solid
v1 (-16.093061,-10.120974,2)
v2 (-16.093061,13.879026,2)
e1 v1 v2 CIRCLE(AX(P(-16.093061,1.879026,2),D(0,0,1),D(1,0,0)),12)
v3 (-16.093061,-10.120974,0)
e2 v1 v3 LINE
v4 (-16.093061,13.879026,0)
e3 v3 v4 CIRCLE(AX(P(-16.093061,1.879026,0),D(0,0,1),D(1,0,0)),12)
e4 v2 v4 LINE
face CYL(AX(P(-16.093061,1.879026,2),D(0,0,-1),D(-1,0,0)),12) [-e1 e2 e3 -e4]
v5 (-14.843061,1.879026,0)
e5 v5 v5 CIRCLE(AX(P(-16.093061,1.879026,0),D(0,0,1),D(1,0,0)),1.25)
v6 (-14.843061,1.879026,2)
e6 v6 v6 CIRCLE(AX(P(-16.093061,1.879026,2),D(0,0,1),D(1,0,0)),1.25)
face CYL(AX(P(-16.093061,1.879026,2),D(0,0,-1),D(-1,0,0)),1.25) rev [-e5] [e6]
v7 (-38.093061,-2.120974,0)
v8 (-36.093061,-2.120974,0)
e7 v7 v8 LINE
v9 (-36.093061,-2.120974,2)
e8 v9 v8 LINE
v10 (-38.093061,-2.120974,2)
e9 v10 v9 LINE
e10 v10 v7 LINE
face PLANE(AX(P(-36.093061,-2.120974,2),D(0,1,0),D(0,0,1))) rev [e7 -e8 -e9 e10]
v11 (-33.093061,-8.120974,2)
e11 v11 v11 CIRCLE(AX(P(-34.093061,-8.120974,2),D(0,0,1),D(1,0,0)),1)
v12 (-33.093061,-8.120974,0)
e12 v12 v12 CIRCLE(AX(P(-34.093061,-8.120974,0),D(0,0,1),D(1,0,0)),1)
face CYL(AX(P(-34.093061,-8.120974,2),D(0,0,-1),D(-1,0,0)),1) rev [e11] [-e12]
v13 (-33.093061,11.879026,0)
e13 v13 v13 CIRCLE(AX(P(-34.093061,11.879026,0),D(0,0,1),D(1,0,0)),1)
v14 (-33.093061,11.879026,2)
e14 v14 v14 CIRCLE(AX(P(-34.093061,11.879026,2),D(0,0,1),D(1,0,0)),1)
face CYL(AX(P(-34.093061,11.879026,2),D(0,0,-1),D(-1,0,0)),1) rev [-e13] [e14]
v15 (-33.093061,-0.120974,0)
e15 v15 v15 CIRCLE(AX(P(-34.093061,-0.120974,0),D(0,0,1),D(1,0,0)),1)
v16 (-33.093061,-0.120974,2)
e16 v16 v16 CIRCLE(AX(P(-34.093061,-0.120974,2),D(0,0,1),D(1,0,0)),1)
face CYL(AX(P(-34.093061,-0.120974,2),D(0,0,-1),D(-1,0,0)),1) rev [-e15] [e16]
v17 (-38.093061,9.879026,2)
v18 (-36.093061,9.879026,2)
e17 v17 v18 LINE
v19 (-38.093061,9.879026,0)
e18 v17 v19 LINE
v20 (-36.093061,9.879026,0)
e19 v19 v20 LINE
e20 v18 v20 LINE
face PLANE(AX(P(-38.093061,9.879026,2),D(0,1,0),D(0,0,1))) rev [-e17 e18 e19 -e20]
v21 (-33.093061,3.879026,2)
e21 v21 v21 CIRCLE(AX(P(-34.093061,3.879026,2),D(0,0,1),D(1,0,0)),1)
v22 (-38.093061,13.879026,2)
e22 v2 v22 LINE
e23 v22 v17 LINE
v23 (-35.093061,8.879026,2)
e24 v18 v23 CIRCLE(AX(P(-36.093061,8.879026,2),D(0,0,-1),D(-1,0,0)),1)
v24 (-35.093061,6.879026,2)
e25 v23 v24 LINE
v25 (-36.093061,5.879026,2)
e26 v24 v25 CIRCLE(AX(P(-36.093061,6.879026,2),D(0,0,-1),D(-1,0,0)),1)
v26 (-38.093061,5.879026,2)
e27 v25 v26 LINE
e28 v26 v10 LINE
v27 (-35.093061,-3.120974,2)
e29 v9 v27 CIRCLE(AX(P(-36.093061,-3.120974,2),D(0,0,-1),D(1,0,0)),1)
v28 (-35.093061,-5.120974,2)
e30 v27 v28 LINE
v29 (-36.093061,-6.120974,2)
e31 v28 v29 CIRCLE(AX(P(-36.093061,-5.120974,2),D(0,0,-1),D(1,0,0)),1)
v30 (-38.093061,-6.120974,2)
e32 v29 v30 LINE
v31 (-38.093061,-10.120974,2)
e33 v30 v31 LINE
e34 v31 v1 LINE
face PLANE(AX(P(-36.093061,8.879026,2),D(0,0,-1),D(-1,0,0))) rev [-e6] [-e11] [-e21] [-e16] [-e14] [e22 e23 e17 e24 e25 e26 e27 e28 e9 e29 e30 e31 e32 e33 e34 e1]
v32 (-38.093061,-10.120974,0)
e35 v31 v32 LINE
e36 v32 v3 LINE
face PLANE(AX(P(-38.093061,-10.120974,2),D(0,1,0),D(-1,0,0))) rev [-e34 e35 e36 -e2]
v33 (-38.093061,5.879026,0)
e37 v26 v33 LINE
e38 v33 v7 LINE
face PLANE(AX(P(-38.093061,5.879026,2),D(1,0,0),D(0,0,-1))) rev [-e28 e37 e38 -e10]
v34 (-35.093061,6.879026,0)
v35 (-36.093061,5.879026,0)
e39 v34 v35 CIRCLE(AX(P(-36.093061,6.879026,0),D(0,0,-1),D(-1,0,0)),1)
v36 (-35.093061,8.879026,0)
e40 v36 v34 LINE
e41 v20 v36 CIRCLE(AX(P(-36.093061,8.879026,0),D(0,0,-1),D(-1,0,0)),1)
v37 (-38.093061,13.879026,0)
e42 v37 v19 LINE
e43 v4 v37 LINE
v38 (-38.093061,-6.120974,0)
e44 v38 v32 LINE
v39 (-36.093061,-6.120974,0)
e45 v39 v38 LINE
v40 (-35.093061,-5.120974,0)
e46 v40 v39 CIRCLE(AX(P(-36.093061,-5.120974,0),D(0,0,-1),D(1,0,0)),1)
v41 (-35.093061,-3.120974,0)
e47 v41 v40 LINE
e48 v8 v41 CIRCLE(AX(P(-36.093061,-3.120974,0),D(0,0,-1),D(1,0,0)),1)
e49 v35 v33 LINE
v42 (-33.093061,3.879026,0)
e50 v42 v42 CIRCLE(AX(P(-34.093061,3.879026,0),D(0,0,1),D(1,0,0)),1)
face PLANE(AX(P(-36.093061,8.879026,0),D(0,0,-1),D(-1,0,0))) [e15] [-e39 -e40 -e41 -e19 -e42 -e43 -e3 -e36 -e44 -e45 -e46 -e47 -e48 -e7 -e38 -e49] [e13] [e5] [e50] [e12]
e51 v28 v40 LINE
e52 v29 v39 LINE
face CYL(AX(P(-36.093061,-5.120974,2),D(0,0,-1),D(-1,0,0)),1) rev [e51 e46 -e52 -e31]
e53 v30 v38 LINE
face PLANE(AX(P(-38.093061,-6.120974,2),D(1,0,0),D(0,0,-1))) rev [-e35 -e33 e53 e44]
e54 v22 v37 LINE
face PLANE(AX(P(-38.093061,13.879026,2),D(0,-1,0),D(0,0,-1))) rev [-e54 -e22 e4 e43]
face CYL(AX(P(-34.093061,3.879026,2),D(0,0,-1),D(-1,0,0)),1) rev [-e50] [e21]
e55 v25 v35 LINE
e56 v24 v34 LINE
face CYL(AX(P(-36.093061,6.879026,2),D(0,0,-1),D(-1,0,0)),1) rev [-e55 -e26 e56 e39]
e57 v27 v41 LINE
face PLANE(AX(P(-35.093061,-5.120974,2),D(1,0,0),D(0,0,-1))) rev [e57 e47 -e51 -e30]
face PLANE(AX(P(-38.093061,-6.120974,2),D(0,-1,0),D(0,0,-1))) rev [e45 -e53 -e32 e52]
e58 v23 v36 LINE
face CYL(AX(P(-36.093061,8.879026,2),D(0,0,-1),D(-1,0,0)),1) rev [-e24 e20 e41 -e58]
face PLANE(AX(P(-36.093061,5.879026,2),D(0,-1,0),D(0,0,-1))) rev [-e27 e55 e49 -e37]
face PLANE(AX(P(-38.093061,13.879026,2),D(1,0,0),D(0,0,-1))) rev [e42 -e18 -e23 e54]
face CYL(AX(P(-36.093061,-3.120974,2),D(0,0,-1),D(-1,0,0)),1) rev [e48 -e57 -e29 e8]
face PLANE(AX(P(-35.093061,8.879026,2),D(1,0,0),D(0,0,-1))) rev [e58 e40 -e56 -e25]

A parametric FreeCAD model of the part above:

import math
import FreeCAD as App
import Part
import Sketcher

doc = App.newDocument("Part")
params = doc.addObject("Spreadsheet::Sheet", "Params")
for row, (alias, value) in enumerate([
    ("sketch1_diameter", "2 mm"),
    ("sketch1_radius", "12 mm"),
    ("sketch1_diameter2", "2.5 mm"),
    ("sketch1_width", "22 mm"),
    ("sketch1_width2", "2 mm"),
    ("pad1_length", "2 mm"),
], start=1):
    params.set(f"A{row}", alias)
    params.set(f"B{row}", "=" + value)
    params.setAlias(f"B{row}", alias)

body = doc.addObject("PartDesign::Body", "Body")

sketch1 = body.newObject("Sketcher::SketchObject", "Sketch")
sketch1.AttachmentSupport = (doc.getObject("XY_Plane"), [""])
sketch1.MapMode = "FlatFace"
sketch1.addGeometry(Part.LineSegment(App.Vector(-16.1, 13.9, 0), App.Vector(-38.1, 13.9, 0)), False)
sketch1.addGeometry(Part.LineSegment(App.Vector(-38.1, 13.9, 0), App.Vector(-38.1, 9.9, 0)), False)
sketch1.addGeometry(Part.LineSegment(App.Vector(-38.1, 9.9, 0), App.Vector(-36.1, 9.9, 0)), False)
sketch1.addGeometry(Part.ArcOfCircle(Part.Circle(App.Vector(-36.1, 8.9, 0), App.Vector(0, 0, 1), 1), math.radians(0), math.radians(90)), False)
sketch1.addGeometry(Part.LineSegment(App.Vector(-35.1, 8.9, 0), App.Vector(-35.1, 6.9, 0)), False)
sketch1.addGeometry(Part.ArcOfCircle(Part.Circle(App.Vector(-36.1, 6.9, 0), App.Vector(0, 0, 1), 1), math.radians(-90), math.radians(0)), False)
sketch1.addGeometry(Part.LineSegment(App.Vector(-36.1, 5.9, 0), App.Vector(-38.1, 5.9, 0)), False)
sketch1.addGeometry(Part.LineSegment(App.Vector(-38.1, 5.9, 0), App.Vector(-38.1, -2.1, 0)), False)
sketch1.addGeometry(Part.LineSegment(App.Vector(-38.1, -2.1, 0), App.Vector(-36.1, -2.1, 0)), False)
sketch1.addGeometry(Part.ArcOfCircle(Part.Circle(App.Vector(-36.1, -3.1, 0), App.Vector(0, 0, 1), 1), math.radians(0), math.radians(90)), False)
sketch1.addGeometry(Part.LineSegment(App.Vector(-35.1, -3.1, 0), App.Vector(-35.1, -5.1, 0)), False)
sketch1.addGeometry(Part.ArcOfCircle(Part.Circle(App.Vector(-36.1, -5.1, 0), App.Vector(0, 0, 1), 1), math.radians(-90), math.radians(0)), False)
sketch1.addGeometry(Part.LineSegment(App.Vector(-36.1, -6.1, 0), App.Vector(-38.1, -6.1, 0)), False)
sketch1.addGeometry(Part.LineSegment(App.Vector(-38.1, -6.1, 0), App.Vector(-38.1, -10.1, 0)), False)
sketch1.addGeometry(Part.LineSegment(App.Vector(-38.1, -10.1, 0), App.Vector(-16.1, -10.1, 0)), False)
sketch1.addGeometry(Part.ArcOfCircle(Part.Circle(App.Vector(-16.1, 1.9, 0), App.Vector(0, 0, 1), 12), math.radians(-90), math.radians(90)), False)
sketch1.addGeometry(Part.Circle(App.Vector(-34.1, -8.1, 0), App.Vector(0, 0, 1), 1), False)
sketch1.addGeometry(Part.Circle(App.Vector(-34.1, -0.1, 0), App.Vector(0, 0, 1), 1), False)
sketch1.addGeometry(Part.Circle(App.Vector(-16.1, 1.9, 0), App.Vector(0, 0, 1), 1.2), False)
sketch1.addGeometry(Part.Circle(App.Vector(-34.1, 3.9, 0), App.Vector(0, 0, 1), 1), False)
sketch1.addGeometry(Part.Circle(App.Vector(-34.1, 11.9, 0), App.Vector(0, 0, 1), 1), False)
sketch1.addConstraint(Sketcher.Constraint("Coincident", 0, 2, 1, 1))
sketch1.addConstraint(Sketcher.Constraint("Coincident", 1, 2, 2, 1))
sketch1.addConstraint(Sketcher.Constraint("Tangent", 2, 2, 3, 2))
sketch1.addConstraint(Sketcher.Constraint("Tangent", 3, 1, 4, 1))
sketch1.addConstraint(Sketcher.Constraint("Tangent", 4, 2, 5, 2))
sketch1.addConstraint(Sketcher.Constraint("Tangent", 5, 1, 6, 1))
sketch1.addConstraint(Sketcher.Constraint("Coincident", 6, 2, 7, 1))
sketch1.addConstraint(Sketcher.Constraint("Coincident", 7, 2, 8, 1))
sketch1.addConstraint(Sketcher.Constraint("Tangent", 8, 2, 9, 2))
sketch1.addConstraint(Sketcher.Constraint("Tangent", 9, 1, 10, 1))
sketch1.addConstraint(Sketcher.Constraint("Tangent", 10, 2, 11, 2))
sketch1.addConstraint(Sketcher.Constraint("Tangent", 11, 1, 12, 1))
sketch1.addConstraint(Sketcher.Constraint("Coincident", 12, 2, 13, 1))
sketch1.addConstraint(Sketcher.Constraint("Coincident", 13, 2, 14, 1))
sketch1.addConstraint(Sketcher.Constraint("Tangent", 14, 2, 15, 1))
sketch1.addConstraint(Sketcher.Constraint("Tangent", 15, 2, 0, 1))
sketch1.addConstraint(Sketcher.Constraint("Horizontal", 0))
sketch1.addConstraint(Sketcher.Constraint("Vertical", 1))
sketch1.addConstraint(Sketcher.Constraint("Horizontal", 2))
sketch1.addConstraint(Sketcher.Constraint("Vertical", 4))
sketch1.addConstraint(Sketcher.Constraint("Horizontal", 6))
sketch1.addConstraint(Sketcher.Constraint("Vertical", 7))
sketch1.addConstraint(Sketcher.Constraint("Horizontal", 8))
sketch1.addConstraint(Sketcher.Constraint("Vertical", 10))
sketch1.addConstraint(Sketcher.Constraint("Horizontal", 12))
sketch1.addConstraint(Sketcher.Constraint("Vertical", 13))
sketch1.addConstraint(Sketcher.Constraint("Horizontal", 14))
sketch1.addConstraint(Sketcher.Constraint("Coincident", 18, 3, 15, 3))
sketch1.addConstraint(Sketcher.Constraint("Equal", 3, 5))
sketch1.addConstraint(Sketcher.Constraint("Equal", 5, 9))
sketch1.addConstraint(Sketcher.Constraint("Equal", 9, 11))
sketch1.addConstraint(Sketcher.Constraint("Equal", 11, 16))
sketch1.addConstraint(Sketcher.Constraint("Equal", 16, 17))
sketch1.addConstraint(Sketcher.Constraint("Equal", 17, 19))
sketch1.addConstraint(Sketcher.Constraint("Equal", 19, 20))
sketch1.addConstraint(Sketcher.Constraint("Vertical", 5, 3, 9, 3))
sketch1.addConstraint(Sketcher.Constraint("Vertical", 16, 3, 17, 3))
sketch1.addConstraint(Sketcher.Constraint("Vertical", 17, 3, 19, 3))
sketch1.addConstraint(Sketcher.Constraint("Vertical", 19, 3, 20, 3))
sketch1.addConstraint(Sketcher.Constraint("Vertical", 1, 2, 6, 2))
sketch1.addConstraint(Sketcher.Constraint("Vertical", 7, 2, 12, 2))
sketch1.addConstraint(Sketcher.Constraint("Equal", 12, 4))
sketch1.addConstraint(Sketcher.Constraint("Equal", 4, 10))
sketch1.addConstraint(Sketcher.Constraint("Equal", 1, 13))
sketch1.addConstraint(Sketcher.Constraint("Diameter", 16, 2.0))
sketch1.addConstraint(Sketcher.Constraint("Radius", 15, 12.0))
sketch1.addConstraint(Sketcher.Constraint("Diameter", 18, 2.5))
sketch1.addConstraint(Sketcher.Constraint("DistanceX", 0, 2, 0, 1, 22.0))
sketch1.addConstraint(Sketcher.Constraint("DistanceX", 2, 1, 2, 2, 2.0))
sketch1.addConstraint(Sketcher.Constraint("DistanceY", 1, 2, 1, 1, 4.0))
sketch1.addConstraint(Sketcher.Constraint("DistanceX", 11, 3, 16, 3, 2.0))
sketch1.addConstraint(Sketcher.Constraint("DistanceY", 16, 3, 11, 3, 3.0))
sketch1.addConstraint(Sketcher.Constraint("DistanceY", 9, 3, 17, 3, 3.0))
sketch1.addConstraint(Sketcher.Constraint("DistanceY", 19, 3, 5, 3, 3.0))
sketch1.addConstraint(Sketcher.Constraint("DistanceY", 3, 3, 20, 3, 3.0))
sketch1.addConstraint(Sketcher.Constraint("DistanceX", 3, 3, -1, 1, 36.093061))
sketch1.addConstraint(Sketcher.Constraint("DistanceY", -1, 1, 3, 3, 8.879026))
sketch1.setExpression("Constraints[44]", "Params.sketch1_diameter")
sketch1.setExpression("Constraints[45]", "Params.sketch1_radius")
sketch1.setExpression("Constraints[46]", "Params.sketch1_diameter2")
sketch1.setExpression("Constraints[47]", "Params.sketch1_width")
sketch1.setExpression("Constraints[48]", "Params.sketch1_width2")
pad1 = body.newObject("PartDesign::Pad", "Pad")
pad1.Profile = sketch1
pad1.setExpression("Length", "Params.pad1_length")

doc.recompute()
